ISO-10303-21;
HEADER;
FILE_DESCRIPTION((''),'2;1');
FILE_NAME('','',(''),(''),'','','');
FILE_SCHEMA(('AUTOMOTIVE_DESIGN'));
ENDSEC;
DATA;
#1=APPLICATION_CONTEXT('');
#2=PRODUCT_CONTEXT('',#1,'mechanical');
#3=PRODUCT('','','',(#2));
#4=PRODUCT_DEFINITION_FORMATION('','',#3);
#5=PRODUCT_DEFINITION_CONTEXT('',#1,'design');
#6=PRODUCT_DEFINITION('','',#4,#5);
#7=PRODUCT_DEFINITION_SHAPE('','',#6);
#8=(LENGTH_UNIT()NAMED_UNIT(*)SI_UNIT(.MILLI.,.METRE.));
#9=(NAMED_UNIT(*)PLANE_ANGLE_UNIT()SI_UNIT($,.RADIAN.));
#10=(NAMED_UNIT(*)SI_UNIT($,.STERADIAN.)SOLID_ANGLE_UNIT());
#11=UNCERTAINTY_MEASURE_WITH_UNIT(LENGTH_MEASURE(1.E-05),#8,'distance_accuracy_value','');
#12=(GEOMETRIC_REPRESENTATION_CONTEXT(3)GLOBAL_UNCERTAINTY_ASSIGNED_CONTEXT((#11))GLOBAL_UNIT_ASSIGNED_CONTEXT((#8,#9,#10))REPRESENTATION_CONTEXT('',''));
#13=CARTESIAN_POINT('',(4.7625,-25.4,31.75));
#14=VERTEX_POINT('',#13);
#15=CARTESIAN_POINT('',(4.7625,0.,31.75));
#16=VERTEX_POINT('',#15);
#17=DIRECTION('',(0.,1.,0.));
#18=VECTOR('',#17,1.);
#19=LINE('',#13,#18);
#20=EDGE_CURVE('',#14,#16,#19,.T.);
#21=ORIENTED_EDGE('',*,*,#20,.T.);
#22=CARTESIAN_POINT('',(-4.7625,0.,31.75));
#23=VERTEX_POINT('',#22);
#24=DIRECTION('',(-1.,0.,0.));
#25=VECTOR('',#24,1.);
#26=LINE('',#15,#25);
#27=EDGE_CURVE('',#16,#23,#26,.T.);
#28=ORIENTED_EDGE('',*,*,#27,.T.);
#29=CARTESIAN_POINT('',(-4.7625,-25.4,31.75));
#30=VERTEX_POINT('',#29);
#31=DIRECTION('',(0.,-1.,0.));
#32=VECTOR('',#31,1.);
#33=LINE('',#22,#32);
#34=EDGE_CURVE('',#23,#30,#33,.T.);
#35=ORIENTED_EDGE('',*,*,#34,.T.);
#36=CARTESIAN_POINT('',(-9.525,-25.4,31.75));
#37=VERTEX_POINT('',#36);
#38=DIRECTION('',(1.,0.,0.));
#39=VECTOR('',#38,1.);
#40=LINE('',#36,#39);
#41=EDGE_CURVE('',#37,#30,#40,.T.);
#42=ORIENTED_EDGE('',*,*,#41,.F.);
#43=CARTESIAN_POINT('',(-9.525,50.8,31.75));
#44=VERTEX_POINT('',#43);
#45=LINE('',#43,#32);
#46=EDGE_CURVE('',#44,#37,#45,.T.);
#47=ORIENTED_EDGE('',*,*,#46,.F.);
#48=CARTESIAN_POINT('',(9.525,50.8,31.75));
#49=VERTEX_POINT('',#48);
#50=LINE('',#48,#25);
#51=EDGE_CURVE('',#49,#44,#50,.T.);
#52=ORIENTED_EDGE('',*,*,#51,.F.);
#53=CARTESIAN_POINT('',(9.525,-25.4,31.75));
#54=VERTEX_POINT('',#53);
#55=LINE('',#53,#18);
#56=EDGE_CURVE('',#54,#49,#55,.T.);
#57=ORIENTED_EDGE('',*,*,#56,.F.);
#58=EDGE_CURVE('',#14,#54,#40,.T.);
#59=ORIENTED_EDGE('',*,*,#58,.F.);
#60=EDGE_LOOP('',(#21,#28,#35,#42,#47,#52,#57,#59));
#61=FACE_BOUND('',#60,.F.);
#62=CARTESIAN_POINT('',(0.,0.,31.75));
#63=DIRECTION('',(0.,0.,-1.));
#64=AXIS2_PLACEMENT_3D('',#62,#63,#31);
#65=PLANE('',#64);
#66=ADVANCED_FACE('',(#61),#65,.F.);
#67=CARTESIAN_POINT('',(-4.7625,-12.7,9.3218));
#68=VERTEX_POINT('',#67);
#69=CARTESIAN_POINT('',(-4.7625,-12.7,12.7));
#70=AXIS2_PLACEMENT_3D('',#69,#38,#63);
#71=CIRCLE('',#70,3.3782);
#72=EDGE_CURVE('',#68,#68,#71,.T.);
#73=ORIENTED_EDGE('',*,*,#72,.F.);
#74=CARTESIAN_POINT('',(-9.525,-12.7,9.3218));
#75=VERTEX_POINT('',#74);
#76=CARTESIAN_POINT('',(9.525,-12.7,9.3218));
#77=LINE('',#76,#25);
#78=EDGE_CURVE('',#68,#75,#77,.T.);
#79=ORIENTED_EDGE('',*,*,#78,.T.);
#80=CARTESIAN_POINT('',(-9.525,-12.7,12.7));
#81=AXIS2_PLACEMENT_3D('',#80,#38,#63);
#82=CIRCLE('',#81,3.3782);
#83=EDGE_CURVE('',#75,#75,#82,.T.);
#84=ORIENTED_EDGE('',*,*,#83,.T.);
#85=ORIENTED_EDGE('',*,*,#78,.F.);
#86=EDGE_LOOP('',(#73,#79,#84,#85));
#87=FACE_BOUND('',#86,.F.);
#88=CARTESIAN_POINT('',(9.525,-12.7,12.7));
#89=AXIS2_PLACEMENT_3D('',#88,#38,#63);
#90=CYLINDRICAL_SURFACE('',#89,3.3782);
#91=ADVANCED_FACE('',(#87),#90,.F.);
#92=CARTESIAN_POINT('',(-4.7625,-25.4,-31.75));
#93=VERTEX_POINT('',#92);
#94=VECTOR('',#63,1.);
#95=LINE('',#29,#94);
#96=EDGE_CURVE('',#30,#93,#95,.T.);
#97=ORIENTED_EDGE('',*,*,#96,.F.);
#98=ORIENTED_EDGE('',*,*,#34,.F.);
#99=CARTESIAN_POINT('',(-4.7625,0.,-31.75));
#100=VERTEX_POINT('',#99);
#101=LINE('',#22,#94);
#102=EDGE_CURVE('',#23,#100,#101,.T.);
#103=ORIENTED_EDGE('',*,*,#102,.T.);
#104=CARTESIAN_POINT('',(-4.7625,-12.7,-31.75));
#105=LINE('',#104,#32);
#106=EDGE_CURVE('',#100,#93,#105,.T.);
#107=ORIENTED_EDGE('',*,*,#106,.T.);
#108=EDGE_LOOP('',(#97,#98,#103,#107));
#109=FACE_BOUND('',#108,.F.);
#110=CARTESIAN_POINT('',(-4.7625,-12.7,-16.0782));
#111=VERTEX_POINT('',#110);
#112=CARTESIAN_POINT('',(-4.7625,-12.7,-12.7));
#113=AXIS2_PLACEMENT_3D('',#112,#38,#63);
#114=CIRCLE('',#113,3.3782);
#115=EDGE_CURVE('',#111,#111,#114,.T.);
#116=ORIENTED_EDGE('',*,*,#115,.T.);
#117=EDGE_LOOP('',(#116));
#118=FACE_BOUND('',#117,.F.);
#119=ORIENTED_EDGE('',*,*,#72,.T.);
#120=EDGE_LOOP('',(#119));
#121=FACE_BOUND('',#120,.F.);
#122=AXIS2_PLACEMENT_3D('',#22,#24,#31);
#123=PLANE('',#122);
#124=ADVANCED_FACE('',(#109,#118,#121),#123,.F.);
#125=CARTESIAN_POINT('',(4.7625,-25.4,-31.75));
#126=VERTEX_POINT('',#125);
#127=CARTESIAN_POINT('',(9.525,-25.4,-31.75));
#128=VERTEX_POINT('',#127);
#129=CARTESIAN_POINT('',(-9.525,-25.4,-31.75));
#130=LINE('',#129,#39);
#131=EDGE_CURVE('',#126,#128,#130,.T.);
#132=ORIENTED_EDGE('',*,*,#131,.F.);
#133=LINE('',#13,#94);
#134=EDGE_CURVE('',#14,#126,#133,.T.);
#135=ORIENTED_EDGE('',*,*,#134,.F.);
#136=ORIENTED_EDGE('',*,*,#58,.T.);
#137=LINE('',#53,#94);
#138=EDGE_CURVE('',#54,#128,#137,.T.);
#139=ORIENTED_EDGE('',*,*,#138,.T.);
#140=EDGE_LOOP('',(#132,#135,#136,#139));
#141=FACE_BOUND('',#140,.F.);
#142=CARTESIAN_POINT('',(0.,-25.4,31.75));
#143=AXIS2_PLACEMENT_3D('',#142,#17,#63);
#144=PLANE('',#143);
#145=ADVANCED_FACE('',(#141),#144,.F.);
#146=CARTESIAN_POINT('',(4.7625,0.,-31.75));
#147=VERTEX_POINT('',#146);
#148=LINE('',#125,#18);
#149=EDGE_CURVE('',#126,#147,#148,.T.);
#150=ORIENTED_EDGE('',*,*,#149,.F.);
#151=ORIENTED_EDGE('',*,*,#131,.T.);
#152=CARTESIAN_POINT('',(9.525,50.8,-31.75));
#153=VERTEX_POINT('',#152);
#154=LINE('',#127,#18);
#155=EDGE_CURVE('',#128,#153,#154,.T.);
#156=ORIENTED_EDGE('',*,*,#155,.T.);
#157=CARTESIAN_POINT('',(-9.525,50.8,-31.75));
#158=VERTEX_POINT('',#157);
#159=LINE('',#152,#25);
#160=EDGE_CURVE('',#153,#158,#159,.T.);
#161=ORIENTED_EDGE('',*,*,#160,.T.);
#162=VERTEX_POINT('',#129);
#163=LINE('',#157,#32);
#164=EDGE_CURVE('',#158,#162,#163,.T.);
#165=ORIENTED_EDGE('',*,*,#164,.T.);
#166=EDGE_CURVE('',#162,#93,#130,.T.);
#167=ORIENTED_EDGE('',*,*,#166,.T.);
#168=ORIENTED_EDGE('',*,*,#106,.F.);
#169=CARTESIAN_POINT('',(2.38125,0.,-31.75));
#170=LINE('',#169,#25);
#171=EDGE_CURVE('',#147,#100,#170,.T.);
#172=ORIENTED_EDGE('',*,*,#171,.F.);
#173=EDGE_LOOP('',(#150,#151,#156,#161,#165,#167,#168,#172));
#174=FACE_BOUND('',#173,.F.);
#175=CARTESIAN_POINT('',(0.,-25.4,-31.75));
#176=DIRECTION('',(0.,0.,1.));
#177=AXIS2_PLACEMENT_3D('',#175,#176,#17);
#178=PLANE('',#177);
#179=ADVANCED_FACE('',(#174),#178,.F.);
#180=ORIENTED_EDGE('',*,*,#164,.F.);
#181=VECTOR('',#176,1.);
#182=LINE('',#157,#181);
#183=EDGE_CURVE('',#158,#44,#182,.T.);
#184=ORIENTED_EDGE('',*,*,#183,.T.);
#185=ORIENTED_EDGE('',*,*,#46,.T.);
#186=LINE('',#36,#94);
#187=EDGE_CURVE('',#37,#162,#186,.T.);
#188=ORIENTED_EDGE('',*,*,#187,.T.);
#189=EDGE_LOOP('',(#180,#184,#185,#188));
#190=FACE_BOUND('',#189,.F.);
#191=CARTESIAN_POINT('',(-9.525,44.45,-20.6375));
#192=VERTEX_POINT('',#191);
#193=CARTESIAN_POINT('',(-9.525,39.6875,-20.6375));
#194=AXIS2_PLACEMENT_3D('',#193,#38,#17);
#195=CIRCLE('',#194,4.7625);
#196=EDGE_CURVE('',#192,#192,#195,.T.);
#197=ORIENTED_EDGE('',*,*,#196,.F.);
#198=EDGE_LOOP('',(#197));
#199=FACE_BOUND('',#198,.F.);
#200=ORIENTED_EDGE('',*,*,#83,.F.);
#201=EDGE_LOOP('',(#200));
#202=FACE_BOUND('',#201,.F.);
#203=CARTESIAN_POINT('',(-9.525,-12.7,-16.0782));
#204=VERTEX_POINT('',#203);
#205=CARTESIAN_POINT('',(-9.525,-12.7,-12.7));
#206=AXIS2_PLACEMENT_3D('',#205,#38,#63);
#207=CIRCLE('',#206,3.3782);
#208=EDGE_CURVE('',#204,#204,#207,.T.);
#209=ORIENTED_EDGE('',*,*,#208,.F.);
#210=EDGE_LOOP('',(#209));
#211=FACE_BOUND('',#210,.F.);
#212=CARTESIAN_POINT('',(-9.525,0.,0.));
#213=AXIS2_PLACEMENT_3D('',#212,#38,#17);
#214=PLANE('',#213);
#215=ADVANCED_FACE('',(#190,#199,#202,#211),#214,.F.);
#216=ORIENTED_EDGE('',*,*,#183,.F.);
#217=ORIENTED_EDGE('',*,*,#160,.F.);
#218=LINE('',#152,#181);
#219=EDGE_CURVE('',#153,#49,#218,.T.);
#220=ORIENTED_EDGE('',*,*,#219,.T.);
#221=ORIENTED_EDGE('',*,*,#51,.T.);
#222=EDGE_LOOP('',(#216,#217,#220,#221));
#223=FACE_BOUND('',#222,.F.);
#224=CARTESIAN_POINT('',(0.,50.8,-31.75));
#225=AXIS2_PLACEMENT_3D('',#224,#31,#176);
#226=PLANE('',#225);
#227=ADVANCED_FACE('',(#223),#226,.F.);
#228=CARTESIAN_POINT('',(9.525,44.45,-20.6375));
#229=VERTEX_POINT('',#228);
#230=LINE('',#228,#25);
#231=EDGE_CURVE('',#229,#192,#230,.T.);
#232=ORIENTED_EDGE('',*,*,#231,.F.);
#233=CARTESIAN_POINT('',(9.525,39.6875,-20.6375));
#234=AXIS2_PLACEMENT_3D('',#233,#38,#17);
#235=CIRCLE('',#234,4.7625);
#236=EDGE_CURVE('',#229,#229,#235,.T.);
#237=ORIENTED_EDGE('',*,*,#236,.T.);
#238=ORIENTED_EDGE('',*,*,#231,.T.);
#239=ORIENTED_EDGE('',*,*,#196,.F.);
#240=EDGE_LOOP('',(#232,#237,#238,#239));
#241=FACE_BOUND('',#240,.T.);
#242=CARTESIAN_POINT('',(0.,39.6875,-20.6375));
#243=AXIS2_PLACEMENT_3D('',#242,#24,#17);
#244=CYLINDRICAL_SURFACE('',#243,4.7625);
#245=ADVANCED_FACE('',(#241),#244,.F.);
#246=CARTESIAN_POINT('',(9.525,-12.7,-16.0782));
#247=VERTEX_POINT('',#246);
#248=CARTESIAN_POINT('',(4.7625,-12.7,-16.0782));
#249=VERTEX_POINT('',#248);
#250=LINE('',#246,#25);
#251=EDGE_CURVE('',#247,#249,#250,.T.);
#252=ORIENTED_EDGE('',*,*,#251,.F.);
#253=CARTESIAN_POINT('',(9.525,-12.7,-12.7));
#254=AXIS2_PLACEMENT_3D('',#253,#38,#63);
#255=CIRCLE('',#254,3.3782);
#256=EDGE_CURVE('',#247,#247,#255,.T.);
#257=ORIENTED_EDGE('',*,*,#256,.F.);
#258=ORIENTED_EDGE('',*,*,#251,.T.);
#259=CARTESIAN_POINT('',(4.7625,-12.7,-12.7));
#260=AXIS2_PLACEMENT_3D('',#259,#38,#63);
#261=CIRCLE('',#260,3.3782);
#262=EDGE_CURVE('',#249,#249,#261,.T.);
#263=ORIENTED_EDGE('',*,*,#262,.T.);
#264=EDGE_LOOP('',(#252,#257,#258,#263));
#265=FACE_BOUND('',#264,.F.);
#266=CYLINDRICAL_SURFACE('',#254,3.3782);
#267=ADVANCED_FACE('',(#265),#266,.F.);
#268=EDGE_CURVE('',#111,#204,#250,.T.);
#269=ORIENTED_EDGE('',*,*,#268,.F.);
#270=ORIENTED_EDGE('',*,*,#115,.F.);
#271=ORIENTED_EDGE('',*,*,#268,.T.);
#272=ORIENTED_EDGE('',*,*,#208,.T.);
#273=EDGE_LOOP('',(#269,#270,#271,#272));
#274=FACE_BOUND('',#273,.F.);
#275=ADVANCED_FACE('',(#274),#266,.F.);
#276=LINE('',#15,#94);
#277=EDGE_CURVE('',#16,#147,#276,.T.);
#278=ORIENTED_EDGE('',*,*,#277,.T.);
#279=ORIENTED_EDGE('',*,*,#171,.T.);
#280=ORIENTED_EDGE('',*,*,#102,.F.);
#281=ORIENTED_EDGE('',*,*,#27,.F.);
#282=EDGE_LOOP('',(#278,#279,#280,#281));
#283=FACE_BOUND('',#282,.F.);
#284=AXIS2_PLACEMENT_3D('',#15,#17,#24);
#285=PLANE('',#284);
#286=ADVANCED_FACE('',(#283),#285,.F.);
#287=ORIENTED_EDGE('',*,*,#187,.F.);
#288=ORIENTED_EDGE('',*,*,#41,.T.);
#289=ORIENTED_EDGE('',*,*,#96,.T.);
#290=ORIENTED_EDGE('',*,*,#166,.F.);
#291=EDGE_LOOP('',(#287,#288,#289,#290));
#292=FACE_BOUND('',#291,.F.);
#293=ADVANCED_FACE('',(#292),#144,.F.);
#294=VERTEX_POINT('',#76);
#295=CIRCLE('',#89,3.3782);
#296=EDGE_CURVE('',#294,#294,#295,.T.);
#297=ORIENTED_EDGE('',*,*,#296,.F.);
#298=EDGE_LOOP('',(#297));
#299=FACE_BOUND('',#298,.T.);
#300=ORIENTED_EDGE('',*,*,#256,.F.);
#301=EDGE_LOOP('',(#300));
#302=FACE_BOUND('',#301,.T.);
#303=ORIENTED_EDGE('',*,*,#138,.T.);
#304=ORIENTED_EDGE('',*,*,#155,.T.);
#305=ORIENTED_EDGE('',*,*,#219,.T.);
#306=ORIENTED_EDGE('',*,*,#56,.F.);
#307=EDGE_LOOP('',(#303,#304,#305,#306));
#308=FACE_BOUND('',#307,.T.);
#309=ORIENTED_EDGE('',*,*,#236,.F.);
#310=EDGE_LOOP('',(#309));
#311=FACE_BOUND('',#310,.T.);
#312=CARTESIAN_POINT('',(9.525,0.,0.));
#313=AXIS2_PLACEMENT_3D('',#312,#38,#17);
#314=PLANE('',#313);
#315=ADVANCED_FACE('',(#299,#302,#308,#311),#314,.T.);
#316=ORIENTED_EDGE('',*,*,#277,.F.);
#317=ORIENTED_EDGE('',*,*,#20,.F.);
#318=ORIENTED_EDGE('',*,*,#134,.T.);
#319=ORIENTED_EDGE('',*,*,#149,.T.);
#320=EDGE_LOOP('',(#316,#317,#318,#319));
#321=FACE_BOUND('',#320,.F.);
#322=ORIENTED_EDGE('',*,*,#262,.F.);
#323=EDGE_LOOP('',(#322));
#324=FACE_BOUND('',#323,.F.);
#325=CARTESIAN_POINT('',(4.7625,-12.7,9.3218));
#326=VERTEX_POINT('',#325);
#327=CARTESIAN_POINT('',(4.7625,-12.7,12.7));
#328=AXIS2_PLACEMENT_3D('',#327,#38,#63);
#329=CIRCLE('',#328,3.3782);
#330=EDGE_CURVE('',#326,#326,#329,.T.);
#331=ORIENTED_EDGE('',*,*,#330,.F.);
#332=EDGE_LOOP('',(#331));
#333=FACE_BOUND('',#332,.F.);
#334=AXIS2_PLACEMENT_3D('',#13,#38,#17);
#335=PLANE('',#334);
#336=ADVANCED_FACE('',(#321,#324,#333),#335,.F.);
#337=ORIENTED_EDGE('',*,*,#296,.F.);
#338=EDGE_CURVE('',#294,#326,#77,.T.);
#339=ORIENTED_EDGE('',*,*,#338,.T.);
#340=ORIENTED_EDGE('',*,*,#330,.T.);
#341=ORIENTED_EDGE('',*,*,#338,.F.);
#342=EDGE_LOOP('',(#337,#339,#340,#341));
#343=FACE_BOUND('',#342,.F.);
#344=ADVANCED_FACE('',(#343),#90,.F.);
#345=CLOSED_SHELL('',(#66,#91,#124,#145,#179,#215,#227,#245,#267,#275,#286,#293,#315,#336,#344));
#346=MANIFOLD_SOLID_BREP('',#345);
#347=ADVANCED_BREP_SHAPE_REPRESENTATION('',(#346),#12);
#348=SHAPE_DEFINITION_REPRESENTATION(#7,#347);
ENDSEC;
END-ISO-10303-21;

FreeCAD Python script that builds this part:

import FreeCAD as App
import Part
import Sketcher
Q = App.Units.Quantity


def add_polygon(sketch, points):
    """Adds a closed chain of lines whose ends are joined by coincident constraints."""
    first, n = sketch.GeometryCount, len(points)
    for a, b in zip(points, points[1:] + points[:1]):
        sketch.addGeometry(Part.LineSegment(App.Vector(*a, 0), App.Vector(*b, 0)), False)
    for i in range(n):
        sketch.addConstraint(Sketcher.Constraint("Coincident", first + i, 2, first + (i + 1) % n, 1))

doc = App.newDocument("Part")
body = doc.addObject("PartDesign::Body", "Body")

sketch1 = body.newObject("Sketcher::SketchObject", "Sketch")
sketch1.AttachmentSupport = (doc.getObject("YZ_Plane"), [""])
sketch1.MapMode = "FlatFace"
add_polygon(sketch1, [(-25.4, 31.8), (-25.4, -31.8), (50.8, -31.8), (50.8, 31.8)])
sketch1.addGeometry(Part.Circle(App.Vector(39.7, -20.6, 0), App.Vector(0, 0, 1), 4.8), False)
sketch1.addConstraint([
    Sketcher.Constraint("Vertical", 0),
    Sketcher.Constraint("Horizontal", 1),
    Sketcher.Constraint("Vertical", 2),
    Sketcher.Constraint("Horizontal", 3),
    Sketcher.Constraint("Diameter", 4, Q("0.375 in")),
    Sketcher.Constraint("DistanceY", 0, 2, 0, 1, Q("2.5 in")),
    Sketcher.Constraint("DistanceX", 0, 2, -1, 1, Q("1 in")),
    Sketcher.Constraint("DistanceX", -1, 1, 1, 2, Q("2 in")),
    Sketcher.Constraint("DistanceY", 0, 2, 4, 3, Q("0.4375 in")),
    Sketcher.Constraint("DistanceX", 4, 3, 1, 2, Q("0.4375 in")),
    Sketcher.Constraint("DistanceY", 0, 2, -1, 1, Q("1.25 in")),
])
pad1 = body.newObject("PartDesign::Pad", "Pad")
pad1.Profile = sketch1
pad1.Length = Q("0.75 in")
pad1.Midplane = True

sketch2 = body.newObject("Sketcher::SketchObject", "Sketch001")
sketch2.AttachmentSupport = (doc.getObject("XY_Plane"), [""])
sketch2.MapMode = "FlatFace"
sketch2.AttachmentOffset = App.Placement(App.Vector(0, 0, 1.25 * 25.4), App.Rotation())
add_polygon(sketch2, [(-5, 0), (-5, -25), (5, -25), (5, 0)])
sketch2.addConstraint([
    Sketcher.Constraint("Vertical", 0),
    Sketcher.Constraint("Horizontal", 1),
    Sketcher.Constraint("Vertical", 2),
    Sketcher.Constraint("Horizontal", 3),
    Sketcher.Constraint("Symmetric", 2, 2, 3, 2, -1, 1),
    Sketcher.Constraint("DistanceX", 1, 1, 1, 2, Q("0.375 in")),
    Sketcher.Constraint("DistanceY", 0, 2, 0, 1, Q("1 in")),
])
pocket1 = body.newObject("PartDesign::Pocket", "Pocket")
pocket1.Profile = sketch2
pocket1.Type = "ThroughAll"

sketch3 = body.newObject("Sketcher::SketchObject", "Sketch002")
sketch3.AttachmentSupport = (doc.getObject("YZ_Plane"), [""])
sketch3.MapMode = "FlatFace"
sketch3.AttachmentOffset = App.Placement(App.Vector(0, 0, 0.375 * 25.4), App.Rotation())
sketch3.addGeometry([
    Part.Circle(App.Vector(-12.7, 12.7, 0), App.Vector(0, 0, 1), 3.4),
    Part.Circle(App.Vector(-12.7, -12.7, 0), App.Vector(0, 0, 1), 3.4),
], False)
sketch3.addConstraint([
    Sketcher.Constraint("Equal", 0, 1),
    Sketcher.Constraint("Symmetric", 0, 3, 1, 3, -1),
    Sketcher.Constraint("Diameter", 0, Q("0.266 in")),
    Sketcher.Constraint("DistanceY", 1, 3, 0, 3, Q("1 in")),
    Sketcher.Constraint("DistanceX", 0, 3, -1, 1, Q("0.5 in")),
])
pocket2 = body.newObject("PartDesign::Pocket", "Pocket001")
pocket2.Profile = sketch3
pocket2.Type = "ThroughAll"

doc.recompute()
